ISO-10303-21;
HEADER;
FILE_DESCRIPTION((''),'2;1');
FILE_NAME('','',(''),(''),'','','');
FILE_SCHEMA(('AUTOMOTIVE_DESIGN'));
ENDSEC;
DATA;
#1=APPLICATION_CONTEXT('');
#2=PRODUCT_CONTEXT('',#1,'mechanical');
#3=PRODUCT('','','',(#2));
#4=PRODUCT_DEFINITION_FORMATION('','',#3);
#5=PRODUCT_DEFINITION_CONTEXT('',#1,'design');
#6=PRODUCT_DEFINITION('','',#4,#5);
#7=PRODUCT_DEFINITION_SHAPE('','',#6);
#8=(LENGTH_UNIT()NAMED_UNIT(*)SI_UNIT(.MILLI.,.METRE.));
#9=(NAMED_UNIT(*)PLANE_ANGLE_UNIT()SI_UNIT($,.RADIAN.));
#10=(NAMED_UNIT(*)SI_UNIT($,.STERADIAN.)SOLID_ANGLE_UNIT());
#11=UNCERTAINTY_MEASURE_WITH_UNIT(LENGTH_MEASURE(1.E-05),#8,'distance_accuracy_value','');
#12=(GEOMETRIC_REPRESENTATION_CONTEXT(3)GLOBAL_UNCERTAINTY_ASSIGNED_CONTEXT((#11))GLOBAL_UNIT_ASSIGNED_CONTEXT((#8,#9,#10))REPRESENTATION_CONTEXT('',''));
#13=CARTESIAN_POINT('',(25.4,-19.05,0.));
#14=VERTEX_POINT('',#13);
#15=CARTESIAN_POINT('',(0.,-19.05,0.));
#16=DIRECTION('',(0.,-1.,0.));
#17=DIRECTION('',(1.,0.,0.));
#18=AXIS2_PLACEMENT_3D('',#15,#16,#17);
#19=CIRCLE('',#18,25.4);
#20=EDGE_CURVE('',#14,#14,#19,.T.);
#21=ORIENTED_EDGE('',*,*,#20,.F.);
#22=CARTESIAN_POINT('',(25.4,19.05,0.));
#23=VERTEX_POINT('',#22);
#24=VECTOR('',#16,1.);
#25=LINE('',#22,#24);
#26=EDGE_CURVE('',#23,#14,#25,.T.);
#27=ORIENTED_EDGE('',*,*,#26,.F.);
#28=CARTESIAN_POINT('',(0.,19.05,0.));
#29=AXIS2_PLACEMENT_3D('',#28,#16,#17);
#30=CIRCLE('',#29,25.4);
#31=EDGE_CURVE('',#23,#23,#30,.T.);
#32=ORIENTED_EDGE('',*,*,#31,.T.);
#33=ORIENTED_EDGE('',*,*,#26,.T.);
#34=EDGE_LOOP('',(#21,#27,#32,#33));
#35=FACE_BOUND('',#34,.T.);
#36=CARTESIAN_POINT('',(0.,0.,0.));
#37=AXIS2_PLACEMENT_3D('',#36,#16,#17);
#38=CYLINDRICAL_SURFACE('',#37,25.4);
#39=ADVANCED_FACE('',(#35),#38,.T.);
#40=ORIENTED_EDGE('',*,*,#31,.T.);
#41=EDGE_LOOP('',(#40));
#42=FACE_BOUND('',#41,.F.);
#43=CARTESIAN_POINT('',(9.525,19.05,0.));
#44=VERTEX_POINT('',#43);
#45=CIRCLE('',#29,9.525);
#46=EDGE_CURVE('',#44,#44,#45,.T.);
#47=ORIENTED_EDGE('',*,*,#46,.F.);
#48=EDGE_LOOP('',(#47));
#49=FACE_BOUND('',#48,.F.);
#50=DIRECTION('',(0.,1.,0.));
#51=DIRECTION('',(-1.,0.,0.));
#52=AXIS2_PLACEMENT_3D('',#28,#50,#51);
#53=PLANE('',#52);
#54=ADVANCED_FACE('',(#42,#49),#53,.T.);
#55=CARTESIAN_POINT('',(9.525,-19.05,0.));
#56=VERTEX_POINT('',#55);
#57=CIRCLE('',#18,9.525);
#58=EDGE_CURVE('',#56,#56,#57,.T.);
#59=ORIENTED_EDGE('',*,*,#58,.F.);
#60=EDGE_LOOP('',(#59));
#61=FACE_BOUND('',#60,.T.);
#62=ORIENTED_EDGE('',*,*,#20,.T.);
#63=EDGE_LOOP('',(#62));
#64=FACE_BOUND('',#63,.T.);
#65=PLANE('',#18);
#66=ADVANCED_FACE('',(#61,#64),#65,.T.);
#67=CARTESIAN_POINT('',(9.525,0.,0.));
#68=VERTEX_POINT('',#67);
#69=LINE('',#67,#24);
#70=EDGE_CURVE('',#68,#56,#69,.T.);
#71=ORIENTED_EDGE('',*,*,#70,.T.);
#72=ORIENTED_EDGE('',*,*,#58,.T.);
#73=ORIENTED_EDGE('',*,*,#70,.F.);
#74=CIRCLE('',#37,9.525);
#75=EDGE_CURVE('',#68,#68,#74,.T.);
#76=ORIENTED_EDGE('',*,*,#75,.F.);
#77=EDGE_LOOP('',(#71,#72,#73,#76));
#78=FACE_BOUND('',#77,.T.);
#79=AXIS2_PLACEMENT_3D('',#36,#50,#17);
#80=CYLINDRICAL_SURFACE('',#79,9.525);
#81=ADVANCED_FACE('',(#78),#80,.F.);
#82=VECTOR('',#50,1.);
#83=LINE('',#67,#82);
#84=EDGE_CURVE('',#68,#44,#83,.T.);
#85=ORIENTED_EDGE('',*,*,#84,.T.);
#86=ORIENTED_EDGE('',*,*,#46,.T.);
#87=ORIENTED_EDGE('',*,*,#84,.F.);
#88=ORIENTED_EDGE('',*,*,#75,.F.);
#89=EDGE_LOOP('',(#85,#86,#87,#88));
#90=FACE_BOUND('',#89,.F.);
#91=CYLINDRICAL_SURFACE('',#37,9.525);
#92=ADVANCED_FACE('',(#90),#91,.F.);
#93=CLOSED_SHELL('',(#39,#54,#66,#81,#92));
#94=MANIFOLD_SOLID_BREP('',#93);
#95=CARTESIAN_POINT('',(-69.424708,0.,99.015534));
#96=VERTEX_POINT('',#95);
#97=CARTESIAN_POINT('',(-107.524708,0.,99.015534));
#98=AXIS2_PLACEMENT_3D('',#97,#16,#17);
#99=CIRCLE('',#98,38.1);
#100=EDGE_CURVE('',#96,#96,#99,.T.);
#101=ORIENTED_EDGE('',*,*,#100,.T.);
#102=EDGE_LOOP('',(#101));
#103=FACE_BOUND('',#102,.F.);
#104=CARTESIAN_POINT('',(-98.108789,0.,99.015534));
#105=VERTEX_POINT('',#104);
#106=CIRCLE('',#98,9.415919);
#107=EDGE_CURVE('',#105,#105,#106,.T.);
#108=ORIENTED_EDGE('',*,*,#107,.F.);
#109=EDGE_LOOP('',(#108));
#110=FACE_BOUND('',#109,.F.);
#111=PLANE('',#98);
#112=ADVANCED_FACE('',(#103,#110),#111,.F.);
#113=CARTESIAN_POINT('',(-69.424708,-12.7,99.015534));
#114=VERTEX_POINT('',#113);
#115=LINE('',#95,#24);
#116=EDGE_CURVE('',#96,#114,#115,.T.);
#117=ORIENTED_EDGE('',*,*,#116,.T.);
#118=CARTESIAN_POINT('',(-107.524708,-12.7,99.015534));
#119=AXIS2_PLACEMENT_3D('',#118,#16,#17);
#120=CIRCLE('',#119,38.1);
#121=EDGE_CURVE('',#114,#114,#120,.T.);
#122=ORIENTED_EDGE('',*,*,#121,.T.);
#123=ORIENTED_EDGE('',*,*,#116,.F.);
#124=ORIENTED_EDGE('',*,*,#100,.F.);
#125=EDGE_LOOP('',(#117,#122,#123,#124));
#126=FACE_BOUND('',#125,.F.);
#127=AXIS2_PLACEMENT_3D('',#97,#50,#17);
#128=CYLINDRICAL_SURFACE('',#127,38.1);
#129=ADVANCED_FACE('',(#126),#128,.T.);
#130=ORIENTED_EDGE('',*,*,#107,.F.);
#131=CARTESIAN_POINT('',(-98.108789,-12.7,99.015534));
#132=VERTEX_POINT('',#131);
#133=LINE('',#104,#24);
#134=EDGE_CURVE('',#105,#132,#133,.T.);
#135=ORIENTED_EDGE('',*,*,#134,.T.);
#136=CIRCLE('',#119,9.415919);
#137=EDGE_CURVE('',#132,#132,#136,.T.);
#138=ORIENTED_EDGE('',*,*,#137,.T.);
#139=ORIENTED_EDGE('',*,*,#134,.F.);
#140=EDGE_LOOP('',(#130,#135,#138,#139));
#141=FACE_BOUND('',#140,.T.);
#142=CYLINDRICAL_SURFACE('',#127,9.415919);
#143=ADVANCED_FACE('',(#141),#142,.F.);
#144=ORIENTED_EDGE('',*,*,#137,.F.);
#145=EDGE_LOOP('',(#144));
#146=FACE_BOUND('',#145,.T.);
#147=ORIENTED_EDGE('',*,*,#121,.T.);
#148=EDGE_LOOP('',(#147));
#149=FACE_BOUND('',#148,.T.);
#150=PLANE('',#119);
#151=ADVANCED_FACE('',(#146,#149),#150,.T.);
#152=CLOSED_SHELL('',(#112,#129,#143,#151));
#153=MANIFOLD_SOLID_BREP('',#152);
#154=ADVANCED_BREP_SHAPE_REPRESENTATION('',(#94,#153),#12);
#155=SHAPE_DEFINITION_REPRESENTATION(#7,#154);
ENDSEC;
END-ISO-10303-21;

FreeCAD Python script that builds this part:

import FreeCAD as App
import Part
import Sketcher
Q = App.Units.Quantity

doc = App.newDocument("Part")
params = doc.addObject("Spreadsheet::Sheet", "Params")
for row, (alias, value) in enumerate([
    ("sketch1_diameter", "2 in"),
    ("sketch1_diameter2", "0.75 in"),
    ("pad1_length", "0.75 in"),
    ("sketch2_diameter", "3 in"),
    ("pad2_length", "0.5 in"),
], start=1):
    params.set(f"A{row}", alias)
    params.set(f"B{row}", "=" + value)
    params.setAlias(f"B{row}", alias)

body = doc.addObject("PartDesign::Body", "Body")

sketch1 = body.newObject("Sketcher::SketchObject", "Sketch")
sketch1.AttachmentSupport = (doc.getObject("XZ_Plane"), [""])
sketch1.MapMode = "FlatFace"
sketch1.addGeometry([
    Part.Circle(App.Vector(0, 0, 0), App.Vector(0, 0, 1), 25.4),
    Part.Circle(App.Vector(0, 0, 0), App.Vector(0, 0, 1), 9.525),
], False)
sketch1.addConstraint([
    Sketcher.Constraint("Coincident", 0, 3, -1, 1),
    Sketcher.Constraint("Coincident", 1, 3, -1, 1),
    Sketcher.Constraint("Diameter", 0, Q("2 in")),
    Sketcher.Constraint("Diameter", 1, Q("0.75 in")),
])
sketch1.setExpression("Constraints[2]", "Params.sketch1_diameter")
sketch1.setExpression("Constraints[3]", "Params.sketch1_diameter2")
pad1 = body.newObject("PartDesign::Pad", "Pad")
pad1.Profile = sketch1
pad1.setExpression("Length", "Params.pad1_length")
body2 = doc.addObject("PartDesign::Body", "Body001")
doc.recompute()

body2.BaseFeature = body
doc.recompute()

mirroring = doc.addObject("Part::Mirroring", "Mirroring")
mirroring.Source = body
mirroring.Base = App.Vector(0, 0, 0)
mirroring.Normal = App.Vector(0, -1, 0)
body3 = doc.addObject("PartDesign::Body", "Body002")
body3.BaseFeature = mirroring
boolean = body2.newObject("PartDesign::Boolean", "Boolean")
boolean.Type = "Fuse"
boolean.addObjects([body3])
doc.recompute()
body4 = doc.addObject("PartDesign::Body", "Body003")

sketch2 = body4.newObject("Sketcher::SketchObject", "Sketch001")
sketch2.AttachmentSupport = (doc.getObject("XZ_Plane003"), [""])
sketch2.MapMode = "FlatFace"
sketch2.addGeometry([
    Part.Circle(App.Vector(-107.524708, 99.015534, 0), App.Vector(0, 0, 1), 38.1),
    Part.Circle(App.Vector(-107.524708, 99.015534, 0), App.Vector(0, 0, 1), 9.415919),
], False)
sketch2.addConstraint([
    Sketcher.Constraint("Coincident", 1, 3, 0, 3),
    Sketcher.Constraint("Diameter", 0, Q("3 in")),
    Sketcher.Constraint("Diameter", 1, 18.831838),
    Sketcher.Constraint("DistanceX", 0, 3, -1, 1, 107.524708),
    Sketcher.Constraint("DistanceY", -1, 1, 0, 3, 99.015534),
])
sketch2.setExpression("Constraints[1]", "Params.sketch2_diameter")
pad2 = body4.newObject("PartDesign::Pad", "Pad001")
pad2.Profile = sketch2
pad2.setExpression("Length", "Params.pad2_length")
mirroring.Visibility = False

doc.recompute()
